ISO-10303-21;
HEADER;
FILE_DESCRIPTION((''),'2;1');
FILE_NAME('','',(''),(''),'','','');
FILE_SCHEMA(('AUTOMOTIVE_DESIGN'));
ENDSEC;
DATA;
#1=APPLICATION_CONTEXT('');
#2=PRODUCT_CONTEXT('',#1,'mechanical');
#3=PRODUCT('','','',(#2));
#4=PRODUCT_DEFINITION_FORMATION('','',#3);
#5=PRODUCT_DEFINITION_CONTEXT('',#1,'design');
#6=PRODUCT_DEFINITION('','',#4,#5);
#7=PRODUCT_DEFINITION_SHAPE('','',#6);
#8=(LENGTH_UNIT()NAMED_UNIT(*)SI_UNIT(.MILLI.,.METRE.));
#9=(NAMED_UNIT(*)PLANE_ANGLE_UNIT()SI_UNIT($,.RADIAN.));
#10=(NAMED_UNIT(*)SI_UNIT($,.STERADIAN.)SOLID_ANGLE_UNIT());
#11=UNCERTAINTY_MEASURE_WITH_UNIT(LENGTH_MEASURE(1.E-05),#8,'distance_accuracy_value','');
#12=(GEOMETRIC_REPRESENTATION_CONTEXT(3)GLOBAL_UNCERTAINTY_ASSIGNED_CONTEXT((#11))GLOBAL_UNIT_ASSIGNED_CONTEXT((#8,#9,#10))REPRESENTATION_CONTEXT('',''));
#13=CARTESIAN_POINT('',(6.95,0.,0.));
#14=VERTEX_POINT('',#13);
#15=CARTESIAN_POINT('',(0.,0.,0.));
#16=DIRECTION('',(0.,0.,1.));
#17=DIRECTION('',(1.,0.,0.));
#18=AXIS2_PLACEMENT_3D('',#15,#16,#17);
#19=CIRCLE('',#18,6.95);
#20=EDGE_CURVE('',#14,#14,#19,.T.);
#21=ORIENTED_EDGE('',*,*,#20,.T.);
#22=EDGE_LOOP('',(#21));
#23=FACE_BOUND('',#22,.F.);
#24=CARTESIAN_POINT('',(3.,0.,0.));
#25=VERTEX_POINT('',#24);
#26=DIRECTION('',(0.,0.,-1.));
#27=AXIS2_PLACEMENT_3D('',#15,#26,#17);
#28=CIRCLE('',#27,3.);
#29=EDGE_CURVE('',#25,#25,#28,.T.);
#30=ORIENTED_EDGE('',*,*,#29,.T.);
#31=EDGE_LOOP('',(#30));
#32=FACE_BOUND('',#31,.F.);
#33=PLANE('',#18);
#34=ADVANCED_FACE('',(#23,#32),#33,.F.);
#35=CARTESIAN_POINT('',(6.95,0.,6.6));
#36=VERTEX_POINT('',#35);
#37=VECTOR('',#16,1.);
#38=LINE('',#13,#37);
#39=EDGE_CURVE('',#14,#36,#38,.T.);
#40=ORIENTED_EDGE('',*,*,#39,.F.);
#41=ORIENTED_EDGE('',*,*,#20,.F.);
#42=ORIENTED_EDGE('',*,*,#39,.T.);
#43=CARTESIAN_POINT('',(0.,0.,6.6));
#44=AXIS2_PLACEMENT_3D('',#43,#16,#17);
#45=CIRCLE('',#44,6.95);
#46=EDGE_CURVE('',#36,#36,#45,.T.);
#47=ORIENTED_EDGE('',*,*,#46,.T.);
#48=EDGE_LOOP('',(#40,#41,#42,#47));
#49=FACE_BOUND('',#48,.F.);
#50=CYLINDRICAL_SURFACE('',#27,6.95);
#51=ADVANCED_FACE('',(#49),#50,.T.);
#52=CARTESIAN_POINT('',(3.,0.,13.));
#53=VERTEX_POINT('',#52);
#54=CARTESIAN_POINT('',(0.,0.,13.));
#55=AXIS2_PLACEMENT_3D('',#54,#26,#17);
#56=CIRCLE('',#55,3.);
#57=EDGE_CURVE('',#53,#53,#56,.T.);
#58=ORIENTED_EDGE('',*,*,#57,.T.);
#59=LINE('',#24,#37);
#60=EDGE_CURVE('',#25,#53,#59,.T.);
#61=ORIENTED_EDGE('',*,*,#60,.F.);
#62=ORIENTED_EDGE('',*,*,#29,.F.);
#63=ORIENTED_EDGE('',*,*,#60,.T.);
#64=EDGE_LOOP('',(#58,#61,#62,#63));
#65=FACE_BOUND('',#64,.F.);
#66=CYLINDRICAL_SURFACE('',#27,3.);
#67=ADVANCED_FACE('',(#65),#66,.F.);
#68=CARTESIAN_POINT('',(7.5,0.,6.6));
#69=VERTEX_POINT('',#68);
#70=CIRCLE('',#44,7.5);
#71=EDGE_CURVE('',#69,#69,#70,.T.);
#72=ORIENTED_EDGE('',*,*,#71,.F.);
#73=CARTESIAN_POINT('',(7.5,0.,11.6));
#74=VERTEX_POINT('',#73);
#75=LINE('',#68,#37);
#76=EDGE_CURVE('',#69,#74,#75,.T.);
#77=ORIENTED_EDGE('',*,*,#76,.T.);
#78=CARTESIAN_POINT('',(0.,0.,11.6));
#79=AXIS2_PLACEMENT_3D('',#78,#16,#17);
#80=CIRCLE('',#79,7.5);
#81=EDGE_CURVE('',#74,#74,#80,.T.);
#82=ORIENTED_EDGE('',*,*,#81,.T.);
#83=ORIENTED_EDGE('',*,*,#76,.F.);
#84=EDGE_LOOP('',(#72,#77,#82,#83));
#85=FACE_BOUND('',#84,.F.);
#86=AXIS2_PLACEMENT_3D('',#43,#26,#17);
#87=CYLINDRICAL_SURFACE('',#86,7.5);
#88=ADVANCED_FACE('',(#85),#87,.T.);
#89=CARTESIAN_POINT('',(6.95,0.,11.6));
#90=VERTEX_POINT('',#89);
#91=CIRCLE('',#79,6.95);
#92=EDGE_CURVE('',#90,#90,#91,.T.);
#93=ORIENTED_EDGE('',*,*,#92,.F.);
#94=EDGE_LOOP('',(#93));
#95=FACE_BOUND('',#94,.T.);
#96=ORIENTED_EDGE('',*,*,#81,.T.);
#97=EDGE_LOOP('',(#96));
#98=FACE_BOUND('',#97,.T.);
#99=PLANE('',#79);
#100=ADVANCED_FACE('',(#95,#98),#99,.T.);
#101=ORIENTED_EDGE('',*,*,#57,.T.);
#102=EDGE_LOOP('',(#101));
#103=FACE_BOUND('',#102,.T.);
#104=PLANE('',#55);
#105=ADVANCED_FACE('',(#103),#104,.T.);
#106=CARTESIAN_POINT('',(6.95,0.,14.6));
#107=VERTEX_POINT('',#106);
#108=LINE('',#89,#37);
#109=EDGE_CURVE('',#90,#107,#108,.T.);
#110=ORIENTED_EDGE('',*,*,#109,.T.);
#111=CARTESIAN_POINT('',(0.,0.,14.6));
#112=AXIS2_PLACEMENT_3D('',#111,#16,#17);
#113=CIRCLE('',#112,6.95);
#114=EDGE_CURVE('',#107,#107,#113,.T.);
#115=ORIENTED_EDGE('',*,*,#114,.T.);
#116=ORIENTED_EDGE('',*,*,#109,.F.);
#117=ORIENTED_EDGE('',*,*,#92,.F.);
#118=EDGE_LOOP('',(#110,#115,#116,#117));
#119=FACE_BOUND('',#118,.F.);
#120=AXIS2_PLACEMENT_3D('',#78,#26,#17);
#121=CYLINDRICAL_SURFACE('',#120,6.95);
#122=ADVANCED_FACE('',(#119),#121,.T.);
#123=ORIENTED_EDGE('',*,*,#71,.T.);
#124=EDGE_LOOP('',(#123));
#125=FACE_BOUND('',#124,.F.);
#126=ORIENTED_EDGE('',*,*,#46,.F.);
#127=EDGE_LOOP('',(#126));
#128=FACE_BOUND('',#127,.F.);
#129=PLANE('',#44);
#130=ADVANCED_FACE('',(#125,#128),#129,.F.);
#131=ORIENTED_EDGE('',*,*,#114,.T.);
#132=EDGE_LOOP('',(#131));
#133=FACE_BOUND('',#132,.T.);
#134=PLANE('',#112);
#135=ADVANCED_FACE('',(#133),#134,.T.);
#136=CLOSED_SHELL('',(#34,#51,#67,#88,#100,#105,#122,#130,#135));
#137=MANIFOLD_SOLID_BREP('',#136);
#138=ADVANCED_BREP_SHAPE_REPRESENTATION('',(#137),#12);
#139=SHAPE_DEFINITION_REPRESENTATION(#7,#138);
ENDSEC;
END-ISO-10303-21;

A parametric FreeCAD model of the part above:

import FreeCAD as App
import Part
import Sketcher

V = App.Vector
Q = App.Units.Quantity

doc = App.newDocument("Part")
params = doc.addObject("Spreadsheet::Sheet", "Params")
for row, (alias, value) in enumerate([
    ("sketch1_diameter", "13.9 mm"),
    ("pad1_length", "6.6 mm"),
    ("sketch2_diameter", "15 mm"),
    ("pad2_length", "5 mm"),
    ("sketch3_diameter", "13.9 mm"),
    ("pad3_length", "3 mm"),
    ("sketch4_diameter", "6 mm"),
    ("pocket1_length", "13 mm"),
], start=1):
    params.set(f"A{row}", alias)
    params.set(f"B{row}", "=" + value)
    params.setAlias(f"B{row}", alias)

body = doc.addObject("PartDesign::Body", "Body")

sketch1 = body.newObject("Sketcher::SketchObject", "Sketch")
sketch1.AttachmentSupport = (doc.getObject("XY_Plane"), [""])
sketch1.MapMode = "FlatFace"
sketch1.addGeometry(Part.Circle(V(0, 0, 0), V(0, 0, 1), 7), False)
sketch1.addConstraint(Sketcher.Constraint("Coincident", 0, 3, -1, 1))
sketch1.addConstraint(Sketcher.Constraint("Diameter", 0, Q("13.9 mm")))
sketch1.setExpression("Constraints[1]", "Params.sketch1_diameter")
pad1 = body.newObject("PartDesign::Pad", "Pad")
pad1.Profile = sketch1
pad1.setExpression("Length", "Params.pad1_length")

sketch2 = body.newObject("Sketcher::SketchObject", "Sketch001")
sketch2.AttachmentSupport = (doc.getObject("XY_Plane"), [""])
sketch2.MapMode = "FlatFace"
sketch2.AttachmentOffset = App.Placement(V(0, 0, 6.6), App.Rotation())
sketch2.addGeometry(Part.Circle(V(0, 0, 0), V(0, 0, 1), 8), False)
sketch2.addConstraint(Sketcher.Constraint("Coincident", 0, 3, -1, 1))
sketch2.addConstraint(Sketcher.Constraint("Diameter", 0, Q("15 mm")))
sketch2.setExpression("Constraints[1]", "Params.sketch2_diameter")
pad2 = body.newObject("PartDesign::Pad", "Pad001")
pad2.Profile = sketch2
pad2.setExpression("Length", "Params.pad2_length")

sketch3 = body.newObject("Sketcher::SketchObject", "Sketch002")
sketch3.AttachmentSupport = (doc.getObject("XY_Plane"), [""])
sketch3.MapMode = "FlatFace"
sketch3.AttachmentOffset = App.Placement(V(0, 0, 11.6), App.Rotation())
sketch3.addGeometry(Part.Circle(V(0, 0, 0), V(0, 0, 1), 7), False)
sketch3.addConstraint(Sketcher.Constraint("Coincident", 0, 3, -1, 1))
sketch3.addConstraint(Sketcher.Constraint("Diameter", 0, Q("13.9 mm")))
sketch3.setExpression("Constraints[1]", "Params.sketch3_diameter")
pad3 = body.newObject("PartDesign::Pad", "Pad002")
pad3.Profile = sketch3
pad3.setExpression("Length", "Params.pad3_length")

sketch4 = body.newObject("Sketcher::SketchObject", "Sketch003")
sketch4.AttachmentSupport = (doc.getObject("XY_Plane"), [""])
sketch4.MapMode = "FlatFace"
sketch4.addGeometry(Part.Circle(V(0, 0, 0), V(0, 0, 1), 3), False)
sketch4.addConstraint(Sketcher.Constraint("Coincident", 0, 3, -1, 1))
sketch4.addConstraint(Sketcher.Constraint("Diameter", 0, Q("6 mm")))
sketch4.setExpression("Constraints[1]", "Params.sketch4_diameter")
pocket1 = body.newObject("PartDesign::Pocket", "Pocket")
pocket1.Profile = sketch4
pocket1.setExpression("Length", "Params.pocket1_length")
pocket1.Reversed = True

doc.recompute()
